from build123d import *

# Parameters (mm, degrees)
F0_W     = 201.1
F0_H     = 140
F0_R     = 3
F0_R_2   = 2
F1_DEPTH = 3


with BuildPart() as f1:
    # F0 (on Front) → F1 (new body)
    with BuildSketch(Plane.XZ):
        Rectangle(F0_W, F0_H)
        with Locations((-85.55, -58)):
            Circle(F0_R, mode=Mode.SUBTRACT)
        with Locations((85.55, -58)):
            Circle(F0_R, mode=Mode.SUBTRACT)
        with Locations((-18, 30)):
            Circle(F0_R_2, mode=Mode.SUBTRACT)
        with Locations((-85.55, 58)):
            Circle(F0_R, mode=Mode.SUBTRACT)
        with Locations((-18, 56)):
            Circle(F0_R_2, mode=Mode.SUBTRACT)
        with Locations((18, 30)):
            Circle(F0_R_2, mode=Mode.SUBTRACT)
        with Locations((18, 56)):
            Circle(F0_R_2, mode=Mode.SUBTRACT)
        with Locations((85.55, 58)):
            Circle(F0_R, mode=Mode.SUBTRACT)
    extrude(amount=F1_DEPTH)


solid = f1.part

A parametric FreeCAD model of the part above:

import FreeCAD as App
import Part
import Sketcher
Q = App.Units.Quantity

doc = App.newDocument("Part")
body = doc.addObject("PartDesign::Body", "Body")

# Sketch on XZ plane
sketch1 = body.newObject("Sketcher::SketchObject", "Sketch")
sketch1.AttachmentSupport = (doc.getObject("XZ_Plane"), [""])
sketch1.MapMode = "FlatFace"
sketch1.addGeometry(Part.LineSegment(App.Vector(-100.55, 70, 0), App.Vector(-100.55, -70, 0)), False)
sketch1.addGeometry(Part.LineSegment(App.Vector(-100.55, -70, 0), App.Vector(100.55, -70, 0)), False)
sketch1.addGeometry(Part.LineSegment(App.Vector(100.55, -70, 0), App.Vector(100.55, 70, 0)), False)
sketch1.addGeometry(Part.LineSegment(App.Vector(100.55, 70, 0), App.Vector(-100.55, 70, 0)), False)
sketch1.addGeometry(Part.Circle(App.Vector(-85.55, -58, 0), App.Vector(0, 0, 1), 3), False)
sketch1.addGeometry(Part.Circle(App.Vector(85.55, -58, 0), App.Vector(0, 0, 1), 3), False)
sketch1.addGeometry(Part.Circle(App.Vector(-18, 30, 0), App.Vector(0, 0, 1), 2), False)
sketch1.addGeometry(Part.Circle(App.Vector(-85.55, 58, 0), App.Vector(0, 0, 1), 3), False)
sketch1.addGeometry(Part.Circle(App.Vector(-18, 56, 0), App.Vector(0, 0, 1), 2), False)
sketch1.addGeometry(Part.Circle(App.Vector(18, 30, 0), App.Vector(0, 0, 1), 2), False)
sketch1.addGeometry(Part.Circle(App.Vector(18, 56, 0), App.Vector(0, 0, 1), 2), False)
sketch1.addGeometry(Part.Circle(App.Vector(85.55, 58, 0), App.Vector(0, 0, 1), 3), False)
sketch1.addConstraint(Sketcher.Constraint("Coincident", 0, 2, 1, 1))
sketch1.addConstraint(Sketcher.Constraint("Coincident", 1, 2, 2, 1))
sketch1.addConstraint(Sketcher.Constraint("Coincident", 2, 2, 3, 1))
sketch1.addConstraint(Sketcher.Constraint("Coincident", 3, 2, 0, 1))
sketch1.addConstraint(Sketcher.Constraint("Vertical", 0))
sketch1.addConstraint(Sketcher.Constraint("Horizontal", 1))
sketch1.addConstraint(Sketcher.Constraint("Vertical", 2))
sketch1.addConstraint(Sketcher.Constraint("Horizontal", 3))
sketch1.addConstraint(Sketcher.Constraint("Equal", 4, 5))
sketch1.addConstraint(Sketcher.Constraint("Equal", 5, 7))
sketch1.addConstraint(Sketcher.Constraint("Equal", 6, 8))
sketch1.addConstraint(Sketcher.Constraint("Equal", 8, 9))
sketch1.addConstraint(Sketcher.Constraint("Equal", 9, 10))
sketch1.addConstraint(Sketcher.Constraint("Equal", 7, 11))
sketch1.addConstraint(Sketcher.Constraint("Symmetric", 5, 3, 7, 3, -1, 1))
sketch1.addConstraint(Sketcher.Constraint("Symmetric", 4, 3, 11, 3, -1, 1))
sketch1.addConstraint(Sketcher.Constraint("Symmetric", 0, 2, 2, 2, -1, 1))
sketch1.addConstraint(Sketcher.Constraint("Symmetric", 4, 3, 5, 3, -2))
sketch1.addConstraint(Sketcher.Constraint("Symmetric", 6, 3, 9, 3, -2))
sketch1.addConstraint(Sketcher.Constraint("Symmetric", 8, 3, 10, 3, -2))
sketch1.addConstraint(Sketcher.Constraint("Vertical", 6, 3, 8, 3))
sketch1.addConstraint(Sketcher.Constraint("Diameter", 4, Q("6 mm")))
sketch1.addConstraint(Sketcher.Constraint("Diameter", 6, Q("4 mm")))
sketch1.addConstraint(Sketcher.Constraint("DistanceY", 0, 2, 0, 1, Q("140 mm")))
sketch1.addConstraint(Sketcher.Constraint("DistanceX", 1, 1, 1, 2, Q("201.1 mm")))
sketch1.addConstraint(Sketcher.Constraint("DistanceY", 4, 3, -1, 1, Q("58 mm")))
sketch1.addConstraint(Sketcher.Constraint("DistanceX", 6, 3, -1, 1, Q("18 mm")))
sketch1.addConstraint(Sketcher.Constraint("DistanceY", -1, 1, 6, 3, Q("30 mm")))
sketch1.addConstraint(Sketcher.Constraint("DistanceY", -1, 1, 8, 3, Q("56 mm")))
sketch1.addConstraint(Sketcher.Constraint("DistanceX", 0, 2, 4, 3, Q("15 mm")))
pad1 = body.newObject("PartDesign::Pad", "Pad")
pad1.Profile = sketch1
pad1.Length = 3

doc.recompute()
